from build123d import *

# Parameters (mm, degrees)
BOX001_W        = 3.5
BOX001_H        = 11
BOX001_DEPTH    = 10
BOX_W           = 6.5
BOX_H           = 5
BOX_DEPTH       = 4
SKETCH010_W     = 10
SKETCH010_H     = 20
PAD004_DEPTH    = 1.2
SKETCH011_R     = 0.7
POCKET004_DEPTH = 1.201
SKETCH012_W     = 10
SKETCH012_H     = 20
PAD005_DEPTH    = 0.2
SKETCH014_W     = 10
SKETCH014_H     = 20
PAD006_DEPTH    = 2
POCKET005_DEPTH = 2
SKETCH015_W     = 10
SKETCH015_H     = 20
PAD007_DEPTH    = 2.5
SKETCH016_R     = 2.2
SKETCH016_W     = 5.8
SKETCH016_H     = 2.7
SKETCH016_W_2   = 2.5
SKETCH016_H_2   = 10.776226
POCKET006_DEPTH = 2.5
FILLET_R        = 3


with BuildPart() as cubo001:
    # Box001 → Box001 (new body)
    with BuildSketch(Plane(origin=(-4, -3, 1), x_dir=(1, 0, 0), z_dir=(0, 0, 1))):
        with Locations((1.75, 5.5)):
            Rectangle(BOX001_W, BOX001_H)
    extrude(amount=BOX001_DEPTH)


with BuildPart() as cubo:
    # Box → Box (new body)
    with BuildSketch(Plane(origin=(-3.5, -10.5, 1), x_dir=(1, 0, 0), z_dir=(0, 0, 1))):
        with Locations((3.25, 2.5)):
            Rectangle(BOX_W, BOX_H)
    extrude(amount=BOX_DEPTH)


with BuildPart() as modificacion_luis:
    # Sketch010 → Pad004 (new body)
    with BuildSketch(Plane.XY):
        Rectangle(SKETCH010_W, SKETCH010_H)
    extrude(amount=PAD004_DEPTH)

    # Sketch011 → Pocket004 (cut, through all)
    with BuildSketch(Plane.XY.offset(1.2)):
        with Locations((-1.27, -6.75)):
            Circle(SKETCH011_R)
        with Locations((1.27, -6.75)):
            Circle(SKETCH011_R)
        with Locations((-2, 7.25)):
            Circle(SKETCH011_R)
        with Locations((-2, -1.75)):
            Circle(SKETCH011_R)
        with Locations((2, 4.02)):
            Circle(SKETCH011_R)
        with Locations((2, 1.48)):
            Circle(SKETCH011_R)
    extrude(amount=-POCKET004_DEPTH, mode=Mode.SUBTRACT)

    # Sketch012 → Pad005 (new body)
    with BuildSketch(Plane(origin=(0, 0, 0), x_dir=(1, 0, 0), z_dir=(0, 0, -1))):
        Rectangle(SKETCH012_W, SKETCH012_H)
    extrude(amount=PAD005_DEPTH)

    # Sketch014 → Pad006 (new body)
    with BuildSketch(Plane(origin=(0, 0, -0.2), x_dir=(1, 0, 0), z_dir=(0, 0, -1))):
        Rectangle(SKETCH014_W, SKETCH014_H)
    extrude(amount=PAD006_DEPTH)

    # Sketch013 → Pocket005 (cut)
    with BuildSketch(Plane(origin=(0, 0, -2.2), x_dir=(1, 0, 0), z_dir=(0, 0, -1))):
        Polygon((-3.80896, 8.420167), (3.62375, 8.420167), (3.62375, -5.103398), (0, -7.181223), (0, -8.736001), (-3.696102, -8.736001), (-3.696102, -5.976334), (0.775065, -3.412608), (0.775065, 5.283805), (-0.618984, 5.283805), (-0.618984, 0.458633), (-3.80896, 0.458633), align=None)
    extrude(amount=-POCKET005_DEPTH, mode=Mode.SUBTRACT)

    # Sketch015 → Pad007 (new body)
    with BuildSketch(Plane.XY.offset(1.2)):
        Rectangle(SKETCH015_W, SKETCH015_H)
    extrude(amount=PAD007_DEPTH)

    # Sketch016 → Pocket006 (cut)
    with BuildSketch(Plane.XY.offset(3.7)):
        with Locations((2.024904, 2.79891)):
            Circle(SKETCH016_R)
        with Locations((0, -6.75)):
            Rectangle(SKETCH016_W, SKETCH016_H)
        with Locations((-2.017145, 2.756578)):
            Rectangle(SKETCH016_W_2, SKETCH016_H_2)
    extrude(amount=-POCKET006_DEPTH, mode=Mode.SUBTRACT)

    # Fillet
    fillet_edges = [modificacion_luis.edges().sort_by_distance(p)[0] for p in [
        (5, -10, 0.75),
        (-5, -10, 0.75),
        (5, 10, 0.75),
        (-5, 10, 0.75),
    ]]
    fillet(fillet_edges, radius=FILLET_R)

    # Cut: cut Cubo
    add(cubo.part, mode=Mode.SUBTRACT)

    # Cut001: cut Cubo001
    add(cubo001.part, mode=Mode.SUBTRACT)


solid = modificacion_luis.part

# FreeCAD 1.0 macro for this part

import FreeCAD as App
import Part
import Sketcher
Q = App.Units.Quantity


def edges_at(feature, points):
    """Names of the edges that pass closest to the given points."""
    edges = feature.Shape.Edges
    near = lambda p: min(range(len(edges)), key=lambda i: edges[i].distToShape(Part.Vertex(*p))[0])
    return sorted({f"Edge{near(p) + 1}" for p in points})

doc = App.newDocument("Part")
body = doc.addObject("PartDesign::Body", "Body")

# Sketch on XY plane
sketch1 = body.newObject("Sketcher::SketchObject", "Sketch")
sketch1.AttachmentSupport = (doc.getObject("XY_Plane"), [""])
sketch1.MapMode = "FlatFace"
sketch1.AttachmentOffset = App.Placement(App.Vector(0, 0, 1), App.Rotation())
sketch1.addGeometry(Part.LineSegment(App.Vector(-4, 8, 0), App.Vector(-4, -3, 0)), False)
sketch1.addGeometry(Part.LineSegment(App.Vector(-4, -3, 0), App.Vector(-0.5, -3, 0)), False)
sketch1.addGeometry(Part.LineSegment(App.Vector(-0.5, -3, 0), App.Vector(-0.5, 8, 0)), False)
sketch1.addGeometry(Part.LineSegment(App.Vector(-0.5, 8, 0), App.Vector(-4, 8, 0)), False)
sketch1.addConstraint(Sketcher.Constraint("Coincident", 0, 2, 1, 1))
sketch1.addConstraint(Sketcher.Constraint("Coincident", 1, 2, 2, 1))
sketch1.addConstraint(Sketcher.Constraint("Coincident", 2, 2, 3, 1))
sketch1.addConstraint(Sketcher.Constraint("Coincident", 3, 2, 0, 1))
sketch1.addConstraint(Sketcher.Constraint("Vertical", 0))
sketch1.addConstraint(Sketcher.Constraint("Horizontal", 1))
sketch1.addConstraint(Sketcher.Constraint("Vertical", 2))
sketch1.addConstraint(Sketcher.Constraint("Horizontal", 3))
sketch1.addConstraint(Sketcher.Constraint("DistanceY", 0, 2, 0, 1, Q("11 mm")))
sketch1.addConstraint(Sketcher.Constraint("DistanceX", 1, 1, 1, 2, Q("3.5 mm")))
sketch1.addConstraint(Sketcher.Constraint("DistanceX", 0, 2, -1, 1, Q("4 mm")))
sketch1.addConstraint(Sketcher.Constraint("DistanceY", 0, 2, -1, 1, Q("3 mm")))
pad1 = body.newObject("PartDesign::Pad", "Pad")
pad1.Profile = sketch1
pad1.Length = 10
body2 = doc.addObject("PartDesign::Body", "Body001")

# Sketch on XY plane
sketch2 = body2.newObject("Sketcher::SketchObject", "Sketch001")
sketch2.AttachmentSupport = (doc.getObject("XY_Plane001"), [""])
sketch2.MapMode = "FlatFace"
sketch2.AttachmentOffset = App.Placement(App.Vector(0, 0, 1), App.Rotation())
sketch2.addGeometry(Part.LineSegment(App.Vector(-3.5, -5.5, 0), App.Vector(-3.5, -10.5, 0)), False)
sketch2.addGeometry(Part.LineSegment(App.Vector(-3.5, -10.5, 0), App.Vector(3, -10.5, 0)), False)
sketch2.addGeometry(Part.LineSegment(App.Vector(3, -10.5, 0), App.Vector(3, -5.5, 0)), False)
sketch2.addGeometry(Part.LineSegment(App.Vector(3, -5.5, 0), App.Vector(-3.5, -5.5, 0)), False)
sketch2.addConstraint(Sketcher.Constraint("Coincident", 0, 2, 1, 1))
sketch2.addConstraint(Sketcher.Constraint("Coincident", 1, 2, 2, 1))
sketch2.addConstraint(Sketcher.Constraint("Coincident", 2, 2, 3, 1))
sketch2.addConstraint(Sketcher.Constraint("Coincident", 3, 2, 0, 1))
sketch2.addConstraint(Sketcher.Constraint("Vertical", 0))
sketch2.addConstraint(Sketcher.Constraint("Horizontal", 1))
sketch2.addConstraint(Sketcher.Constraint("Vertical", 2))
sketch2.addConstraint(Sketcher.Constraint("Horizontal", 3))
sketch2.addConstraint(Sketcher.Constraint("DistanceY", 0, 2, 0, 1, Q("5 mm")))
sketch2.addConstraint(Sketcher.Constraint("DistanceX", 1, 1, 1, 2, Q("6.5 mm")))
sketch2.addConstraint(Sketcher.Constraint("DistanceX", -1, 1, 1, 2, Q("3 mm")))
sketch2.addConstraint(Sketcher.Constraint("DistanceY", 0, 2, -1, 1, Q("10.5 mm")))
pad2 = body2.newObject("PartDesign::Pad", "Pad001")
pad2.Profile = sketch2
pad2.Length = 4
body3 = doc.addObject("PartDesign::Body", "Body002")

# Sketch on XY plane
sketch3 = body3.newObject("Sketcher::SketchObject", "Sketch002")
sketch3.AttachmentSupport = (doc.getObject("XY_Plane002"), [""])
sketch3.MapMode = "FlatFace"
sketch3.addGeometry(Part.LineSegment(App.Vector(-5, 10, 0), App.Vector(-5, -10, 0)), False)
sketch3.addGeometry(Part.LineSegment(App.Vector(-5, -10, 0), App.Vector(5, -10, 0)), False)
sketch3.addGeometry(Part.LineSegment(App.Vector(5, -10, 0), App.Vector(5, 10, 0)), False)
sketch3.addGeometry(Part.LineSegment(App.Vector(5, 10, 0), App.Vector(-5, 10, 0)), False)
sketch3.addConstraint(Sketcher.Constraint("Coincident", 0, 2, 1, 1))
sketch3.addConstraint(Sketcher.Constraint("Coincident", 1, 2, 2, 1))
sketch3.addConstraint(Sketcher.Constraint("Coincident", 2, 2, 3, 1))
sketch3.addConstraint(Sketcher.Constraint("Coincident", 3, 2, 0, 1))
sketch3.addConstraint(Sketcher.Constraint("Vertical", 0))
sketch3.addConstraint(Sketcher.Constraint("Horizontal", 1))
sketch3.addConstraint(Sketcher.Constraint("Vertical", 2))
sketch3.addConstraint(Sketcher.Constraint("Horizontal", 3))
sketch3.addConstraint(Sketcher.Constraint("Symmetric", 0, 2, 2, 2, -1, 1))
sketch3.addConstraint(Sketcher.Constraint("DistanceX", 1, 1, 1, 2, Q("10 mm")))
sketch3.addConstraint(Sketcher.Constraint("DistanceY", 0, 2, 0, 1, Q("20 mm")))
pad3 = body3.newObject("PartDesign::Pad", "Pad002")
pad3.Profile = sketch3
pad3.Length = 1.2

# Sketch on XY plane
sketch4 = body3.newObject("Sketcher::SketchObject", "Sketch003")
sketch4.AttachmentSupport = (doc.getObject("XY_Plane002"), [""])
sketch4.MapMode = "FlatFace"
sketch4.AttachmentOffset = App.Placement(App.Vector(0, 0, 1.2), App.Rotation())
sketch4.addGeometry(Part.Circle(App.Vector(-1.27, -6.75, 0), App.Vector(0, 0, 1), 0.7), False)
sketch4.addGeometry(Part.Circle(App.Vector(1.27, -6.75, 0), App.Vector(0, 0, 1), 0.7), False)
sketch4.addGeometry(Part.Circle(App.Vector(-2, 7.25, 0), App.Vector(0, 0, 1), 0.7), False)
sketch4.addGeometry(Part.Circle(App.Vector(-2, -1.75, 0), App.Vector(0, 0, 1), 0.7), False)
sketch4.addGeometry(Part.Circle(App.Vector(2, 4.02, 0), App.Vector(0, 0, 1), 0.7), False)
sketch4.addGeometry(Part.Circle(App.Vector(2, 1.48, 0), App.Vector(0, 0, 1), 0.7), False)
sketch4.addConstraint(Sketcher.Constraint("Equal", 0, 1))
sketch4.addConstraint(Sketcher.Constraint("Equal", 1, 2))
sketch4.addConstraint(Sketcher.Constraint("Equal", 2, 3))
sketch4.addConstraint(Sketcher.Constraint("Equal", 3, 4))
sketch4.addConstraint(Sketcher.Constraint("Equal", 4, 5))
sketch4.addConstraint(Sketcher.Constraint("Symmetric", 0, 3, 1, 3, -2))
sketch4.addConstraint(Sketcher.Constraint("Vertical", 2, 3, 3, 3))
sketch4.addConstraint(Sketcher.Constraint("Vertical", 4, 3, 5, 3))
sketch4.addConstraint(Sketcher.Constraint("Diameter", 0, Q("1.4 mm")))
sketch4.addConstraint(Sketcher.Constraint("DistanceX", 2, 3, -1, 1, Q("2 mm")))
sketch4.addConstraint(Sketcher.Constraint("DistanceX", -1, 1, 4, 3, Q("2 mm")))
sketch4.addConstraint(Sketcher.Constraint("DistanceY", 0, 3, 2, 3, Q("14 mm")))
sketch4.addConstraint(Sketcher.Constraint("DistanceY", 0, 3, 3, 3, Q("5 mm")))
sketch4.addConstraint(Sketcher.Constraint("DistanceX", 0, 3, -1, 1, Q("1.27 mm")))
sketch4.addConstraint(Sketcher.Constraint("DistanceY", 0, 3, -1, 1, Q("6.75 mm")))
sketch4.addConstraint(Sketcher.Constraint("DistanceY", -1, 1, 4, 3, Q("4.02 mm")))
sketch4.addConstraint(Sketcher.Constraint("DistanceY", -1, 1, 5, 3, Q("1.48 mm")))
pocket1 = body3.newObject("PartDesign::Pocket", "Pocket")
pocket1.Profile = sketch4
pocket1.Type = "ThroughAll"

# Sketch on XY plane
sketch5 = body3.newObject("Sketcher::SketchObject", "Sketch004")
sketch5.AttachmentSupport = (doc.getObject("XY_Plane002"), [""])
sketch5.MapMode = "FlatFace"
sketch5.addGeometry(Part.LineSegment(App.Vector(-5, -10, 0), App.Vector(-5, 10, 0)), False)
sketch5.addGeometry(Part.LineSegment(App.Vector(-5, 10, 0), App.Vector(5, 10, 0)), False)
sketch5.addGeometry(Part.LineSegment(App.Vector(5, 10, 0), App.Vector(5, -10, 0)), False)
sketch5.addGeometry(Part.LineSegment(App.Vector(5, -10, 0), App.Vector(-5, -10, 0)), False)
sketch5.addConstraint(Sketcher.Constraint("Coincident", 0, 2, 1, 1))
sketch5.addConstraint(Sketcher.Constraint("Coincident", 1, 2, 2, 1))
sketch5.addConstraint(Sketcher.Constraint("Coincident", 2, 2, 3, 1))
sketch5.addConstraint(Sketcher.Constraint("Coincident", 3, 2, 0, 1))
sketch5.addConstraint(Sketcher.Constraint("Vertical", 0))
sketch5.addConstraint(Sketcher.Constraint("Horizontal", 1))
sketch5.addConstraint(Sketcher.Constraint("Vertical", 2))
sketch5.addConstraint(Sketcher.Constraint("Horizontal", 3))
sketch5.addConstraint(Sketcher.Constraint("Symmetric", 0, 2, 2, 2, -1, 1))
sketch5.addConstraint(Sketcher.Constraint("DistanceX", 1, 1, 1, 2, Q("10 mm")))
sketch5.addConstraint(Sketcher.Constraint("DistanceY", 0, 1, 0, 2, Q("20 mm")))
pad4 = body3.newObject("PartDesign::Pad", "Pad003")
pad4.Profile = sketch5
pad4.Length = 0.2
pad4.Reversed = True

# Sketch on XY plane
sketch6 = body3.newObject("Sketcher::SketchObject", "Sketch005")
sketch6.AttachmentSupport = (doc.getObject("XY_Plane002"), [""])
sketch6.MapMode = "FlatFace"
sketch6.AttachmentOffset = App.Placement(App.Vector(0, 0, -0.2), App.Rotation())
sketch6.addGeometry(Part.LineSegment(App.Vector(-5, -10, 0), App.Vector(-5, 10, 0)), False)
sketch6.addGeometry(Part.LineSegment(App.Vector(-5, 10, 0), App.Vector(5, 10, 0)), False)
sketch6.addGeometry(Part.LineSegment(App.Vector(5, 10, 0), App.Vector(5, -10, 0)), False)
sketch6.addGeometry(Part.LineSegment(App.Vector(5, -10, 0), App.Vector(-5, -10, 0)), False)
sketch6.addConstraint(Sketcher.Constraint("Coincident", 0, 2, 1, 1))
sketch6.addConstraint(Sketcher.Constraint("Coincident", 1, 2, 2, 1))
sketch6.addConstraint(Sketcher.Constraint("Coincident", 2, 2, 3, 1))
sketch6.addConstraint(Sketcher.Constraint("Coincident", 3, 2, 0, 1))
sketch6.addConstraint(Sketcher.Constraint("Vertical", 0))
sketch6.addConstraint(Sketcher.Constraint("Horizontal", 1))
sketch6.addConstraint(Sketcher.Constraint("Vertical", 2))
sketch6.addConstraint(Sketcher.Constraint("Horizontal", 3))
sketch6.addConstraint(Sketcher.Constraint("Symmetric", 0, 2, 2, 2, -1, 1))
sketch6.addConstraint(Sketcher.Constraint("DistanceX", 1, 1, 1, 2, Q("10 mm")))
sketch6.addConstraint(Sketcher.Constraint("DistanceY", 0, 1, 0, 2, Q("20 mm")))
pad5 = body3.newObject("PartDesign::Pad", "Pad004")
pad5.Profile = sketch6
pad5.Length = 2
pad5.Reversed = True

# Sketch on XY plane
sketch7 = body3.newObject("Sketcher::SketchObject", "Sketch006")
sketch7.AttachmentSupport = (doc.getObject("XY_Plane002"), [""])
sketch7.MapMode = "FlatFace"
sketch7.AttachmentOffset = App.Placement(App.Vector(0, 0, -2.2), App.Rotation())
sketch7.addGeometry(Part.LineSegment(App.Vector(3.62375, -8.420167, 0), App.Vector(-3.80896, -8.420167, 0)), False)
sketch7.addGeometry(Part.LineSegment(App.Vector(-3.80896, -8.420167, 0), App.Vector(-3.80896, -0.458633, 0)), False)
sketch7.addGeometry(Part.LineSegment(App.Vector(-3.80896, -0.458633, 0), App.Vector(-0.618984, -0.458633, 0)), False)
sketch7.addGeometry(Part.LineSegment(App.Vector(-0.618984, -0.458633, 0), App.Vector(-0.618984, -5.283805, 0)), False)
sketch7.addGeometry(Part.LineSegment(App.Vector(-0.618984, -5.283805, 0), App.Vector(0.775065, -5.283805, 0)), False)
sketch7.addGeometry(Part.LineSegment(App.Vector(0.775065, -5.283805, 0), App.Vector(0.775065, 3.412608, 0)), False)
sketch7.addGeometry(Part.LineSegment(App.Vector(0.775065, 3.412608, 0), App.Vector(-3.696102, 5.976334, 0)), False)
sketch7.addGeometry(Part.LineSegment(App.Vector(-3.696102, 5.976334, 0), App.Vector(-3.696102, 8.736001, 0)), False)
sketch7.addGeometry(Part.LineSegment(App.Vector(-3.696102, 8.736001, 0), App.Vector(0, 8.736001, 0)), False)
sketch7.addGeometry(Part.LineSegment(App.Vector(0, 8.736001, 0), App.Vector(0, 7.181223, 0)), False)
sketch7.addGeometry(Part.LineSegment(App.Vector(0, 7.181223, 0), App.Vector(3.62375, 5.103398, 0)), False)
sketch7.addGeometry(Part.LineSegment(App.Vector(3.62375, 5.103398, 0), App.Vector(3.62375, -8.420167, 0)), False)
sketch7.addConstraint(Sketcher.Constraint("Coincident", 0, 2, 1, 1))
sketch7.addConstraint(Sketcher.Constraint("Coincident", 1, 2, 2, 1))
sketch7.addConstraint(Sketcher.Constraint("Coincident", 2, 2, 3, 1))
sketch7.addConstraint(Sketcher.Constraint("Coincident", 3, 2, 4, 1))
sketch7.addConstraint(Sketcher.Constraint("Coincident", 4, 2, 5, 1))
sketch7.addConstraint(Sketcher.Constraint("Coincident", 5, 2, 6, 1))
sketch7.addConstraint(Sketcher.Constraint("Coincident", 6, 2, 7, 1))
sketch7.addConstraint(Sketcher.Constraint("Coincident", 7, 2, 8, 1))
sketch7.addConstraint(Sketcher.Constraint("Coincident", 8, 2, 9, 1))
sketch7.addConstraint(Sketcher.Constraint("Coincident", 9, 2, 10, 1))
sketch7.addConstraint(Sketcher.Constraint("Coincident", 10, 2, 11, 1))
sketch7.addConstraint(Sketcher.Constraint("Coincident", 11, 2, 0, 1))
sketch7.addConstraint(Sketcher.Constraint("Horizontal", 0))
sketch7.addConstraint(Sketcher.Constraint("Vertical", 1))
sketch7.addConstraint(Sketcher.Constraint("Horizontal", 2))
sketch7.addConstraint(Sketcher.Constraint("Vertical", 3))
sketch7.addConstraint(Sketcher.Constraint("Horizontal", 4))
sketch7.addConstraint(Sketcher.Constraint("Vertical", 5))
sketch7.addConstraint(Sketcher.Constraint("Vertical", 7))
sketch7.addConstraint(Sketcher.Constraint("Horizontal", 8))
sketch7.addConstraint(Sketcher.Constraint("Vertical", 9))
sketch7.addConstraint(Sketcher.Constraint("Vertical", 11))
sketch7.addConstraint(Sketcher.Constraint("PointOnObject", 8, 2, -2))
sketch7.addConstraint(Sketcher.Constraint("Parallel", 6, 10))
sketch7.addConstraint(Sketcher.Constraint("DistanceY", -1, 1, 7, 2, Q("8.736001 mm")))
sketch7.addConstraint(Sketcher.Constraint("DistanceX", 0, 2, 0, 1, Q("7.43271 mm")))
sketch7.addConstraint(Sketcher.Constraint("DistanceX", 4, 1, 4, 2, Q("1.394049 mm")))
sketch7.addConstraint(Sketcher.Constraint("DistanceY", -1, 1, 10, 2, Q("5.103398 mm")))
sketch7.addConstraint(Sketcher.Constraint("Distance", 6, Q("5.15403 mm")))
sketch7.addConstraint(Sketcher.Constraint("Distance", 10, Q("4.177191 mm")))
sketch7.addConstraint(Sketcher.Constraint("DistanceX", 2, 1, 2, 2, Q("3.189976 mm")))
sketch7.addConstraint(Sketcher.Constraint("DistanceX", 8, 1, 8, 2, Q("3.696102 mm")))
sketch7.addConstraint(Sketcher.Constraint("DistanceY", 1, 1, 1, 2, Q("7.961534 mm")))
sketch7.addConstraint(Sketcher.Constraint("DistanceY", 3, 2, 3, 1, Q("4.825172 mm")))
sketch7.addConstraint(Sketcher.Constraint("DistanceY", 5, 1, 5, 2, Q("8.696413 mm")))
sketch7.addConstraint(Sketcher.Constraint("DistanceY", 7, 1, 7, 2, Q("2.759667 mm")))
pocket2 = body3.newObject("PartDesign::Pocket", "Pocket001")
pocket2.Profile = sketch7
pocket2.Length = 2
pocket2.Reversed = True

# Sketch on XY plane
sketch8 = body3.newObject("Sketcher::SketchObject", "Sketch007")
sketch8.AttachmentSupport = (doc.getObject("XY_Plane002"), [""])
sketch8.MapMode = "FlatFace"
sketch8.AttachmentOffset = App.Placement(App.Vector(0, 0, 1.2), App.Rotation())
sketch8.addGeometry(Part.LineSegment(App.Vector(-5, 10, 0), App.Vector(-5, -10, 0)), False)
sketch8.addGeometry(Part.LineSegment(App.Vector(-5, -10, 0), App.Vector(5, -10, 0)), False)
sketch8.addGeometry(Part.LineSegment(App.Vector(5, -10, 0), App.Vector(5, 10, 0)), False)
sketch8.addGeometry(Part.LineSegment(App.Vector(5, 10, 0), App.Vector(-5, 10, 0)), False)
sketch8.addConstraint(Sketcher.Constraint("Coincident", 0, 2, 1, 1))
sketch8.addConstraint(Sketcher.Constraint("Coincident", 1, 2, 2, 1))
sketch8.addConstraint(Sketcher.Constraint("Coincident", 2, 2, 3, 1))
sketch8.addConstraint(Sketcher.Constraint("Coincident", 3, 2, 0, 1))
sketch8.addConstraint(Sketcher.Constraint("Vertical", 0))
sketch8.addConstraint(Sketcher.Constraint("Horizontal", 1))
sketch8.addConstraint(Sketcher.Constraint("Vertical", 2))
sketch8.addConstraint(Sketcher.Constraint("Horizontal", 3))
sketch8.addConstraint(Sketcher.Constraint("Symmetric", 0, 2, 2, 2, -1, 1))
sketch8.addConstraint(Sketcher.Constraint("DistanceX", 1, 1, 1, 2, Q("10 mm")))
sketch8.addConstraint(Sketcher.Constraint("DistanceY", 0, 2, 0, 1, Q("20 mm")))
pad6 = body3.newObject("PartDesign::Pad", "Pad005")
pad6.Profile = sketch8
pad6.Length = 2.5

# Sketch on XY plane
sketch9 = body3.newObject("Sketcher::SketchObject", "Sketch008")
sketch9.AttachmentSupport = (doc.getObject("XY_Plane002"), [""])
sketch9.MapMode = "FlatFace"
sketch9.AttachmentOffset = App.Placement(App.Vector(0, 0, 3.7), App.Rotation())
sketch9.addGeometry(Part.Circle(App.Vector(2.024904, 2.79891, 0), App.Vector(0, 0, 1), 2.2), False)
sketch9.addGeometry(Part.LineSegment(App.Vector(-2.9, -5.4, 0), App.Vector(-2.9, -8.1, 0)), False)
sketch9.addGeometry(Part.LineSegment(App.Vector(-2.9, -8.1, 0), App.Vector(2.9, -8.1, 0)), False)
sketch9.addGeometry(Part.LineSegment(App.Vector(2.9, -8.1, 0), App.Vector(2.9, -5.4, 0)), False)
sketch9.addGeometry(Part.LineSegment(App.Vector(2.9, -5.4, 0), App.Vector(-2.9, -5.4, 0)), False)
sketch9.addGeometry(Part.LineSegment(App.Vector(-3.267145, 8.144691, 0), App.Vector(-3.267145, -2.631535, 0)), False)
sketch9.addGeometry(Part.LineSegment(App.Vector(-3.267145, -2.631535, 0), App.Vector(-0.767145, -2.631535, 0)), False)
sketch9.addGeometry(Part.LineSegment(App.Vector(-0.767145, -2.631535, 0), App.Vector(-0.767145, 8.144691, 0)), False)
sketch9.addGeometry(Part.LineSegment(App.Vector(-0.767145, 8.144691, 0), App.Vector(-3.267145, 8.144691, 0)), False)
sketch9.addConstraint(Sketcher.Constraint("Coincident", 1, 2, 2, 1))
sketch9.addConstraint(Sketcher.Constraint("Coincident", 2, 2, 3, 1))
sketch9.addConstraint(Sketcher.Constraint("Coincident", 3, 2, 4, 1))
sketch9.addConstraint(Sketcher.Constraint("Coincident", 4, 2, 1, 1))
sketch9.addConstraint(Sketcher.Constraint("Coincident", 5, 2, 6, 1))
sketch9.addConstraint(Sketcher.Constraint("Coincident", 6, 2, 7, 1))
sketch9.addConstraint(Sketcher.Constraint("Coincident", 7, 2, 8, 1))
sketch9.addConstraint(Sketcher.Constraint("Coincident", 8, 2, 5, 1))
sketch9.addConstraint(Sketcher.Constraint("Vertical", 1))
sketch9.addConstraint(Sketcher.Constraint("Horizontal", 2))
sketch9.addConstraint(Sketcher.Constraint("Vertical", 3))
sketch9.addConstraint(Sketcher.Constraint("Horizontal", 4))
sketch9.addConstraint(Sketcher.Constraint("Vertical", 5))
sketch9.addConstraint(Sketcher.Constraint("Horizontal", 6))
sketch9.addConstraint(Sketcher.Constraint("Vertical", 7))
sketch9.addConstraint(Sketcher.Constraint("Horizontal", 8))
sketch9.addConstraint(Sketcher.Constraint("Diameter", 0, Q("4.4 mm")))
sketch9.addConstraint(Sketcher.Constraint("DistanceX", 2, 1, 2, 2, Q("5.8 mm")))
sketch9.addConstraint(Sketcher.Constraint("DistanceX", 6, 1, 6, 2, Q("2.5 mm")))
sketch9.addConstraint(Sketcher.Constraint("DistanceY", 1, 2, 1, 1, Q("2.7 mm")))
sketch9.addConstraint(Sketcher.Constraint("DistanceX", 1, 2, -1, 1, Q("2.9 mm")))
sketch9.addConstraint(Sketcher.Constraint("DistanceY", 1, 2, -1, 1, Q("8.1 mm")))
sketch9.addConstraint(Sketcher.Constraint("DistanceY", 5, 2, 5, 1, Q("10.776226 mm")))
sketch9.addConstraint(Sketcher.Constraint("DistanceY", -1, 1, 0, 3, Q("2.79891 mm")))
sketch9.addConstraint(Sketcher.Constraint("DistanceY", -1, 1, 7, 2, Q("8.144691 mm")))
sketch9.addConstraint(Sketcher.Constraint("DistanceX", 5, 2, 0, 3, Q("5.292049 mm")))
sketch9.addConstraint(Sketcher.Constraint("DistanceX", -1, 1, 0, 3, Q("2.024904 mm")))
pocket3 = body3.newObject("PartDesign::Pocket", "Pocket002")
pocket3.Profile = sketch9
pocket3.Length = 2.5
doc.recompute()

fillet = body3.newObject("PartDesign::Fillet", "Fillet")
fillet.Base = (pocket3, edges_at(pocket3, [
    (5, -10, 0.75),
    (-5, -10, 0.75),
    (5, 10, 0.75),
    (-5, 10, 0.75),
]))
fillet.Radius = 3
doc.recompute()

boolean = body3.newObject("PartDesign::Boolean", "Boolean")
boolean.Type = "Cut"
boolean.addObjects([body2])
doc.recompute()

boolean2 = body3.newObject("PartDesign::Boolean", "Boolean001")
boolean2.Type = "Cut"
boolean2.addObjects([body])

doc.recompute()
